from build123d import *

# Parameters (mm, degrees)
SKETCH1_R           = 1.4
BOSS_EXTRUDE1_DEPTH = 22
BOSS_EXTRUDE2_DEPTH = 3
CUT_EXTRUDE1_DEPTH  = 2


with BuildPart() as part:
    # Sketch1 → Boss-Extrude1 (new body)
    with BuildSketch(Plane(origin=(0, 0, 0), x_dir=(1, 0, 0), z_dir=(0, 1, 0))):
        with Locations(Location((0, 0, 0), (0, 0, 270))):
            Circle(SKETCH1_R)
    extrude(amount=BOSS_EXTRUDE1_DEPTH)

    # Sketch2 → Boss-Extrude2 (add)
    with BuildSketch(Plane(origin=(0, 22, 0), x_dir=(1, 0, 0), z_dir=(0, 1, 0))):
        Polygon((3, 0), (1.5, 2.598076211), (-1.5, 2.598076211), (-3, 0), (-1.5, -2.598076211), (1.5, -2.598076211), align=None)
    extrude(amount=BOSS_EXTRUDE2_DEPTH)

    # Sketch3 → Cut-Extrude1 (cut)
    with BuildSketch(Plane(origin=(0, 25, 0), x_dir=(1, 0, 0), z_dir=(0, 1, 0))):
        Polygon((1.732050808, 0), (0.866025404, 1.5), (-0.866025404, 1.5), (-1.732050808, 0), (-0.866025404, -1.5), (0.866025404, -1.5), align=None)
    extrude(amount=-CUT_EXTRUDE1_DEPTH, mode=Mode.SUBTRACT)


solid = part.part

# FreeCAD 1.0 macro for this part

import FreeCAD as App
import Part
import Sketcher
Q = App.Units.Quantity

doc = App.newDocument("Part")
body = doc.addObject("PartDesign::Body", "Body")

sketch1 = body.newObject("Sketcher::SketchObject", "Sketch")
sketch1.AttachmentSupport = (doc.getObject("XZ_Plane"), [""])
sketch1.MapMode = "FlatFace"
sketch1.addGeometry(Part.Circle(App.Vector(0, 0, 0), App.Vector(0, 0, 1), 1.4), False)
sketch1.addConstraint([
    Sketcher.Constraint("Coincident", 0, 3, -1, 1),
    Sketcher.Constraint("Diameter", 0, 2.8),
])
pad1 = body.newObject("PartDesign::Pad", "Pad")
pad1.Profile = sketch1
pad1.Length = 22
pad1.Reversed = True

sketch2 = body.newObject("Sketcher::SketchObject", "Sketch001")
sketch2.AttachmentSupport = (doc.getObject("XZ_Plane"), [""])
sketch2.MapMode = "FlatFace"
sketch2.AttachmentOffset = App.Placement(App.Vector(0, 0, -22), App.Rotation())
sketch2.addGeometry([
    Part.LineSegment(App.Vector(3, 0, 0), App.Vector(1.5, -2.598076, 0)),
    Part.LineSegment(App.Vector(1.5, -2.598076, 0), App.Vector(-1.5, -2.598076, 0)),
    Part.LineSegment(App.Vector(-1.5, -2.598076, 0), App.Vector(-3, 0, 0)),
    Part.LineSegment(App.Vector(-3, 0, 0), App.Vector(-1.5, 2.598076, 0)),
    Part.LineSegment(App.Vector(-1.5, 2.598076, 0), App.Vector(1.5, 2.598076, 0)),
    Part.LineSegment(App.Vector(1.5, 2.598076, 0), App.Vector(3, 0, 0)),
], False)
sketch2.addConstraint([
    Sketcher.Constraint("Coincident", 0, 2, 1, 1),
    Sketcher.Constraint("Coincident", 1, 2, 2, 1),
    Sketcher.Constraint("Coincident", 2, 2, 3, 1),
    Sketcher.Constraint("Coincident", 3, 2, 4, 1),
    Sketcher.Constraint("Coincident", 4, 2, 5, 1),
    Sketcher.Constraint("Coincident", 5, 2, 0, 1),
    Sketcher.Constraint("Horizontal", 1),
    Sketcher.Constraint("Horizontal", 4),
    Sketcher.Constraint("Symmetric", 0, 2, 3, 2, -1, 1),
    Sketcher.Constraint("Symmetric", 2, 2, 5, 2, -1, 1),
    Sketcher.Constraint("PointOnObject", 2, 2, -1),
    Sketcher.Constraint("Parallel", 2, 5),
    Sketcher.Constraint("Vertical", 1, 2, 3, 2),
    Sketcher.Constraint("DistanceX", 1, 2, 1, 1, 3.0),
    Sketcher.Constraint("Angle", 0, Q("-120 deg")),
    Sketcher.Constraint("Distance", 0, 3.0),
])
pad2 = body.newObject("PartDesign::Pad", "Pad001")
pad2.Profile = sketch2
pad2.Length = 3
pad2.Reversed = True

sketch3 = body.newObject("Sketcher::SketchObject", "Sketch002")
sketch3.AttachmentSupport = (doc.getObject("XZ_Plane"), [""])
sketch3.MapMode = "FlatFace"
sketch3.AttachmentOffset = App.Placement(App.Vector(0, 0, -25), App.Rotation())
sketch3.addGeometry([
    Part.LineSegment(App.Vector(1.732051, 0, 0), App.Vector(0.866025, -1.5, 0)),
    Part.LineSegment(App.Vector(0.866025, -1.5, 0), App.Vector(-0.866025, -1.5, 0)),
    Part.LineSegment(App.Vector(-0.866025, -1.5, 0), App.Vector(-1.732051, 0, 0)),
    Part.LineSegment(App.Vector(-1.732051, 0, 0), App.Vector(-0.866025, 1.5, 0)),
    Part.LineSegment(App.Vector(-0.866025, 1.5, 0), App.Vector(0.866025, 1.5, 0)),
    Part.LineSegment(App.Vector(0.866025, 1.5, 0), App.Vector(1.732051, 0, 0)),
], False)
sketch3.addConstraint([
    Sketcher.Constraint("Coincident", 0, 2, 1, 1),
    Sketcher.Constraint("Coincident", 1, 2, 2, 1),
    Sketcher.Constraint("Coincident", 2, 2, 3, 1),
    Sketcher.Constraint("Coincident", 3, 2, 4, 1),
    Sketcher.Constraint("Coincident", 4, 2, 5, 1),
    Sketcher.Constraint("Coincident", 5, 2, 0, 1),
    Sketcher.Constraint("Horizontal", 1),
    Sketcher.Constraint("Horizontal", 4),
    Sketcher.Constraint("Symmetric", 0, 2, 3, 2, -1, 1),
    Sketcher.Constraint("Symmetric", 2, 2, 5, 2, -1, 1),
    Sketcher.Constraint("PointOnObject", 2, 2, -1),
    Sketcher.Constraint("Parallel", 2, 5),
    Sketcher.Constraint("Vertical", 1, 2, 3, 2),
    Sketcher.Constraint("Angle", 0, Q("-120 deg")),
    Sketcher.Constraint("DistanceY", 1, 2, 3, 2, 3.0),
    Sketcher.Constraint("DistanceX", 1, 2, 1, 1, 1.732051),
])
pocket1 = body.newObject("PartDesign::Pocket", "Pocket")
pocket1.Profile = sketch3
pocket1.Length = 2
pocket1.Reversed = True

doc.recompute()
